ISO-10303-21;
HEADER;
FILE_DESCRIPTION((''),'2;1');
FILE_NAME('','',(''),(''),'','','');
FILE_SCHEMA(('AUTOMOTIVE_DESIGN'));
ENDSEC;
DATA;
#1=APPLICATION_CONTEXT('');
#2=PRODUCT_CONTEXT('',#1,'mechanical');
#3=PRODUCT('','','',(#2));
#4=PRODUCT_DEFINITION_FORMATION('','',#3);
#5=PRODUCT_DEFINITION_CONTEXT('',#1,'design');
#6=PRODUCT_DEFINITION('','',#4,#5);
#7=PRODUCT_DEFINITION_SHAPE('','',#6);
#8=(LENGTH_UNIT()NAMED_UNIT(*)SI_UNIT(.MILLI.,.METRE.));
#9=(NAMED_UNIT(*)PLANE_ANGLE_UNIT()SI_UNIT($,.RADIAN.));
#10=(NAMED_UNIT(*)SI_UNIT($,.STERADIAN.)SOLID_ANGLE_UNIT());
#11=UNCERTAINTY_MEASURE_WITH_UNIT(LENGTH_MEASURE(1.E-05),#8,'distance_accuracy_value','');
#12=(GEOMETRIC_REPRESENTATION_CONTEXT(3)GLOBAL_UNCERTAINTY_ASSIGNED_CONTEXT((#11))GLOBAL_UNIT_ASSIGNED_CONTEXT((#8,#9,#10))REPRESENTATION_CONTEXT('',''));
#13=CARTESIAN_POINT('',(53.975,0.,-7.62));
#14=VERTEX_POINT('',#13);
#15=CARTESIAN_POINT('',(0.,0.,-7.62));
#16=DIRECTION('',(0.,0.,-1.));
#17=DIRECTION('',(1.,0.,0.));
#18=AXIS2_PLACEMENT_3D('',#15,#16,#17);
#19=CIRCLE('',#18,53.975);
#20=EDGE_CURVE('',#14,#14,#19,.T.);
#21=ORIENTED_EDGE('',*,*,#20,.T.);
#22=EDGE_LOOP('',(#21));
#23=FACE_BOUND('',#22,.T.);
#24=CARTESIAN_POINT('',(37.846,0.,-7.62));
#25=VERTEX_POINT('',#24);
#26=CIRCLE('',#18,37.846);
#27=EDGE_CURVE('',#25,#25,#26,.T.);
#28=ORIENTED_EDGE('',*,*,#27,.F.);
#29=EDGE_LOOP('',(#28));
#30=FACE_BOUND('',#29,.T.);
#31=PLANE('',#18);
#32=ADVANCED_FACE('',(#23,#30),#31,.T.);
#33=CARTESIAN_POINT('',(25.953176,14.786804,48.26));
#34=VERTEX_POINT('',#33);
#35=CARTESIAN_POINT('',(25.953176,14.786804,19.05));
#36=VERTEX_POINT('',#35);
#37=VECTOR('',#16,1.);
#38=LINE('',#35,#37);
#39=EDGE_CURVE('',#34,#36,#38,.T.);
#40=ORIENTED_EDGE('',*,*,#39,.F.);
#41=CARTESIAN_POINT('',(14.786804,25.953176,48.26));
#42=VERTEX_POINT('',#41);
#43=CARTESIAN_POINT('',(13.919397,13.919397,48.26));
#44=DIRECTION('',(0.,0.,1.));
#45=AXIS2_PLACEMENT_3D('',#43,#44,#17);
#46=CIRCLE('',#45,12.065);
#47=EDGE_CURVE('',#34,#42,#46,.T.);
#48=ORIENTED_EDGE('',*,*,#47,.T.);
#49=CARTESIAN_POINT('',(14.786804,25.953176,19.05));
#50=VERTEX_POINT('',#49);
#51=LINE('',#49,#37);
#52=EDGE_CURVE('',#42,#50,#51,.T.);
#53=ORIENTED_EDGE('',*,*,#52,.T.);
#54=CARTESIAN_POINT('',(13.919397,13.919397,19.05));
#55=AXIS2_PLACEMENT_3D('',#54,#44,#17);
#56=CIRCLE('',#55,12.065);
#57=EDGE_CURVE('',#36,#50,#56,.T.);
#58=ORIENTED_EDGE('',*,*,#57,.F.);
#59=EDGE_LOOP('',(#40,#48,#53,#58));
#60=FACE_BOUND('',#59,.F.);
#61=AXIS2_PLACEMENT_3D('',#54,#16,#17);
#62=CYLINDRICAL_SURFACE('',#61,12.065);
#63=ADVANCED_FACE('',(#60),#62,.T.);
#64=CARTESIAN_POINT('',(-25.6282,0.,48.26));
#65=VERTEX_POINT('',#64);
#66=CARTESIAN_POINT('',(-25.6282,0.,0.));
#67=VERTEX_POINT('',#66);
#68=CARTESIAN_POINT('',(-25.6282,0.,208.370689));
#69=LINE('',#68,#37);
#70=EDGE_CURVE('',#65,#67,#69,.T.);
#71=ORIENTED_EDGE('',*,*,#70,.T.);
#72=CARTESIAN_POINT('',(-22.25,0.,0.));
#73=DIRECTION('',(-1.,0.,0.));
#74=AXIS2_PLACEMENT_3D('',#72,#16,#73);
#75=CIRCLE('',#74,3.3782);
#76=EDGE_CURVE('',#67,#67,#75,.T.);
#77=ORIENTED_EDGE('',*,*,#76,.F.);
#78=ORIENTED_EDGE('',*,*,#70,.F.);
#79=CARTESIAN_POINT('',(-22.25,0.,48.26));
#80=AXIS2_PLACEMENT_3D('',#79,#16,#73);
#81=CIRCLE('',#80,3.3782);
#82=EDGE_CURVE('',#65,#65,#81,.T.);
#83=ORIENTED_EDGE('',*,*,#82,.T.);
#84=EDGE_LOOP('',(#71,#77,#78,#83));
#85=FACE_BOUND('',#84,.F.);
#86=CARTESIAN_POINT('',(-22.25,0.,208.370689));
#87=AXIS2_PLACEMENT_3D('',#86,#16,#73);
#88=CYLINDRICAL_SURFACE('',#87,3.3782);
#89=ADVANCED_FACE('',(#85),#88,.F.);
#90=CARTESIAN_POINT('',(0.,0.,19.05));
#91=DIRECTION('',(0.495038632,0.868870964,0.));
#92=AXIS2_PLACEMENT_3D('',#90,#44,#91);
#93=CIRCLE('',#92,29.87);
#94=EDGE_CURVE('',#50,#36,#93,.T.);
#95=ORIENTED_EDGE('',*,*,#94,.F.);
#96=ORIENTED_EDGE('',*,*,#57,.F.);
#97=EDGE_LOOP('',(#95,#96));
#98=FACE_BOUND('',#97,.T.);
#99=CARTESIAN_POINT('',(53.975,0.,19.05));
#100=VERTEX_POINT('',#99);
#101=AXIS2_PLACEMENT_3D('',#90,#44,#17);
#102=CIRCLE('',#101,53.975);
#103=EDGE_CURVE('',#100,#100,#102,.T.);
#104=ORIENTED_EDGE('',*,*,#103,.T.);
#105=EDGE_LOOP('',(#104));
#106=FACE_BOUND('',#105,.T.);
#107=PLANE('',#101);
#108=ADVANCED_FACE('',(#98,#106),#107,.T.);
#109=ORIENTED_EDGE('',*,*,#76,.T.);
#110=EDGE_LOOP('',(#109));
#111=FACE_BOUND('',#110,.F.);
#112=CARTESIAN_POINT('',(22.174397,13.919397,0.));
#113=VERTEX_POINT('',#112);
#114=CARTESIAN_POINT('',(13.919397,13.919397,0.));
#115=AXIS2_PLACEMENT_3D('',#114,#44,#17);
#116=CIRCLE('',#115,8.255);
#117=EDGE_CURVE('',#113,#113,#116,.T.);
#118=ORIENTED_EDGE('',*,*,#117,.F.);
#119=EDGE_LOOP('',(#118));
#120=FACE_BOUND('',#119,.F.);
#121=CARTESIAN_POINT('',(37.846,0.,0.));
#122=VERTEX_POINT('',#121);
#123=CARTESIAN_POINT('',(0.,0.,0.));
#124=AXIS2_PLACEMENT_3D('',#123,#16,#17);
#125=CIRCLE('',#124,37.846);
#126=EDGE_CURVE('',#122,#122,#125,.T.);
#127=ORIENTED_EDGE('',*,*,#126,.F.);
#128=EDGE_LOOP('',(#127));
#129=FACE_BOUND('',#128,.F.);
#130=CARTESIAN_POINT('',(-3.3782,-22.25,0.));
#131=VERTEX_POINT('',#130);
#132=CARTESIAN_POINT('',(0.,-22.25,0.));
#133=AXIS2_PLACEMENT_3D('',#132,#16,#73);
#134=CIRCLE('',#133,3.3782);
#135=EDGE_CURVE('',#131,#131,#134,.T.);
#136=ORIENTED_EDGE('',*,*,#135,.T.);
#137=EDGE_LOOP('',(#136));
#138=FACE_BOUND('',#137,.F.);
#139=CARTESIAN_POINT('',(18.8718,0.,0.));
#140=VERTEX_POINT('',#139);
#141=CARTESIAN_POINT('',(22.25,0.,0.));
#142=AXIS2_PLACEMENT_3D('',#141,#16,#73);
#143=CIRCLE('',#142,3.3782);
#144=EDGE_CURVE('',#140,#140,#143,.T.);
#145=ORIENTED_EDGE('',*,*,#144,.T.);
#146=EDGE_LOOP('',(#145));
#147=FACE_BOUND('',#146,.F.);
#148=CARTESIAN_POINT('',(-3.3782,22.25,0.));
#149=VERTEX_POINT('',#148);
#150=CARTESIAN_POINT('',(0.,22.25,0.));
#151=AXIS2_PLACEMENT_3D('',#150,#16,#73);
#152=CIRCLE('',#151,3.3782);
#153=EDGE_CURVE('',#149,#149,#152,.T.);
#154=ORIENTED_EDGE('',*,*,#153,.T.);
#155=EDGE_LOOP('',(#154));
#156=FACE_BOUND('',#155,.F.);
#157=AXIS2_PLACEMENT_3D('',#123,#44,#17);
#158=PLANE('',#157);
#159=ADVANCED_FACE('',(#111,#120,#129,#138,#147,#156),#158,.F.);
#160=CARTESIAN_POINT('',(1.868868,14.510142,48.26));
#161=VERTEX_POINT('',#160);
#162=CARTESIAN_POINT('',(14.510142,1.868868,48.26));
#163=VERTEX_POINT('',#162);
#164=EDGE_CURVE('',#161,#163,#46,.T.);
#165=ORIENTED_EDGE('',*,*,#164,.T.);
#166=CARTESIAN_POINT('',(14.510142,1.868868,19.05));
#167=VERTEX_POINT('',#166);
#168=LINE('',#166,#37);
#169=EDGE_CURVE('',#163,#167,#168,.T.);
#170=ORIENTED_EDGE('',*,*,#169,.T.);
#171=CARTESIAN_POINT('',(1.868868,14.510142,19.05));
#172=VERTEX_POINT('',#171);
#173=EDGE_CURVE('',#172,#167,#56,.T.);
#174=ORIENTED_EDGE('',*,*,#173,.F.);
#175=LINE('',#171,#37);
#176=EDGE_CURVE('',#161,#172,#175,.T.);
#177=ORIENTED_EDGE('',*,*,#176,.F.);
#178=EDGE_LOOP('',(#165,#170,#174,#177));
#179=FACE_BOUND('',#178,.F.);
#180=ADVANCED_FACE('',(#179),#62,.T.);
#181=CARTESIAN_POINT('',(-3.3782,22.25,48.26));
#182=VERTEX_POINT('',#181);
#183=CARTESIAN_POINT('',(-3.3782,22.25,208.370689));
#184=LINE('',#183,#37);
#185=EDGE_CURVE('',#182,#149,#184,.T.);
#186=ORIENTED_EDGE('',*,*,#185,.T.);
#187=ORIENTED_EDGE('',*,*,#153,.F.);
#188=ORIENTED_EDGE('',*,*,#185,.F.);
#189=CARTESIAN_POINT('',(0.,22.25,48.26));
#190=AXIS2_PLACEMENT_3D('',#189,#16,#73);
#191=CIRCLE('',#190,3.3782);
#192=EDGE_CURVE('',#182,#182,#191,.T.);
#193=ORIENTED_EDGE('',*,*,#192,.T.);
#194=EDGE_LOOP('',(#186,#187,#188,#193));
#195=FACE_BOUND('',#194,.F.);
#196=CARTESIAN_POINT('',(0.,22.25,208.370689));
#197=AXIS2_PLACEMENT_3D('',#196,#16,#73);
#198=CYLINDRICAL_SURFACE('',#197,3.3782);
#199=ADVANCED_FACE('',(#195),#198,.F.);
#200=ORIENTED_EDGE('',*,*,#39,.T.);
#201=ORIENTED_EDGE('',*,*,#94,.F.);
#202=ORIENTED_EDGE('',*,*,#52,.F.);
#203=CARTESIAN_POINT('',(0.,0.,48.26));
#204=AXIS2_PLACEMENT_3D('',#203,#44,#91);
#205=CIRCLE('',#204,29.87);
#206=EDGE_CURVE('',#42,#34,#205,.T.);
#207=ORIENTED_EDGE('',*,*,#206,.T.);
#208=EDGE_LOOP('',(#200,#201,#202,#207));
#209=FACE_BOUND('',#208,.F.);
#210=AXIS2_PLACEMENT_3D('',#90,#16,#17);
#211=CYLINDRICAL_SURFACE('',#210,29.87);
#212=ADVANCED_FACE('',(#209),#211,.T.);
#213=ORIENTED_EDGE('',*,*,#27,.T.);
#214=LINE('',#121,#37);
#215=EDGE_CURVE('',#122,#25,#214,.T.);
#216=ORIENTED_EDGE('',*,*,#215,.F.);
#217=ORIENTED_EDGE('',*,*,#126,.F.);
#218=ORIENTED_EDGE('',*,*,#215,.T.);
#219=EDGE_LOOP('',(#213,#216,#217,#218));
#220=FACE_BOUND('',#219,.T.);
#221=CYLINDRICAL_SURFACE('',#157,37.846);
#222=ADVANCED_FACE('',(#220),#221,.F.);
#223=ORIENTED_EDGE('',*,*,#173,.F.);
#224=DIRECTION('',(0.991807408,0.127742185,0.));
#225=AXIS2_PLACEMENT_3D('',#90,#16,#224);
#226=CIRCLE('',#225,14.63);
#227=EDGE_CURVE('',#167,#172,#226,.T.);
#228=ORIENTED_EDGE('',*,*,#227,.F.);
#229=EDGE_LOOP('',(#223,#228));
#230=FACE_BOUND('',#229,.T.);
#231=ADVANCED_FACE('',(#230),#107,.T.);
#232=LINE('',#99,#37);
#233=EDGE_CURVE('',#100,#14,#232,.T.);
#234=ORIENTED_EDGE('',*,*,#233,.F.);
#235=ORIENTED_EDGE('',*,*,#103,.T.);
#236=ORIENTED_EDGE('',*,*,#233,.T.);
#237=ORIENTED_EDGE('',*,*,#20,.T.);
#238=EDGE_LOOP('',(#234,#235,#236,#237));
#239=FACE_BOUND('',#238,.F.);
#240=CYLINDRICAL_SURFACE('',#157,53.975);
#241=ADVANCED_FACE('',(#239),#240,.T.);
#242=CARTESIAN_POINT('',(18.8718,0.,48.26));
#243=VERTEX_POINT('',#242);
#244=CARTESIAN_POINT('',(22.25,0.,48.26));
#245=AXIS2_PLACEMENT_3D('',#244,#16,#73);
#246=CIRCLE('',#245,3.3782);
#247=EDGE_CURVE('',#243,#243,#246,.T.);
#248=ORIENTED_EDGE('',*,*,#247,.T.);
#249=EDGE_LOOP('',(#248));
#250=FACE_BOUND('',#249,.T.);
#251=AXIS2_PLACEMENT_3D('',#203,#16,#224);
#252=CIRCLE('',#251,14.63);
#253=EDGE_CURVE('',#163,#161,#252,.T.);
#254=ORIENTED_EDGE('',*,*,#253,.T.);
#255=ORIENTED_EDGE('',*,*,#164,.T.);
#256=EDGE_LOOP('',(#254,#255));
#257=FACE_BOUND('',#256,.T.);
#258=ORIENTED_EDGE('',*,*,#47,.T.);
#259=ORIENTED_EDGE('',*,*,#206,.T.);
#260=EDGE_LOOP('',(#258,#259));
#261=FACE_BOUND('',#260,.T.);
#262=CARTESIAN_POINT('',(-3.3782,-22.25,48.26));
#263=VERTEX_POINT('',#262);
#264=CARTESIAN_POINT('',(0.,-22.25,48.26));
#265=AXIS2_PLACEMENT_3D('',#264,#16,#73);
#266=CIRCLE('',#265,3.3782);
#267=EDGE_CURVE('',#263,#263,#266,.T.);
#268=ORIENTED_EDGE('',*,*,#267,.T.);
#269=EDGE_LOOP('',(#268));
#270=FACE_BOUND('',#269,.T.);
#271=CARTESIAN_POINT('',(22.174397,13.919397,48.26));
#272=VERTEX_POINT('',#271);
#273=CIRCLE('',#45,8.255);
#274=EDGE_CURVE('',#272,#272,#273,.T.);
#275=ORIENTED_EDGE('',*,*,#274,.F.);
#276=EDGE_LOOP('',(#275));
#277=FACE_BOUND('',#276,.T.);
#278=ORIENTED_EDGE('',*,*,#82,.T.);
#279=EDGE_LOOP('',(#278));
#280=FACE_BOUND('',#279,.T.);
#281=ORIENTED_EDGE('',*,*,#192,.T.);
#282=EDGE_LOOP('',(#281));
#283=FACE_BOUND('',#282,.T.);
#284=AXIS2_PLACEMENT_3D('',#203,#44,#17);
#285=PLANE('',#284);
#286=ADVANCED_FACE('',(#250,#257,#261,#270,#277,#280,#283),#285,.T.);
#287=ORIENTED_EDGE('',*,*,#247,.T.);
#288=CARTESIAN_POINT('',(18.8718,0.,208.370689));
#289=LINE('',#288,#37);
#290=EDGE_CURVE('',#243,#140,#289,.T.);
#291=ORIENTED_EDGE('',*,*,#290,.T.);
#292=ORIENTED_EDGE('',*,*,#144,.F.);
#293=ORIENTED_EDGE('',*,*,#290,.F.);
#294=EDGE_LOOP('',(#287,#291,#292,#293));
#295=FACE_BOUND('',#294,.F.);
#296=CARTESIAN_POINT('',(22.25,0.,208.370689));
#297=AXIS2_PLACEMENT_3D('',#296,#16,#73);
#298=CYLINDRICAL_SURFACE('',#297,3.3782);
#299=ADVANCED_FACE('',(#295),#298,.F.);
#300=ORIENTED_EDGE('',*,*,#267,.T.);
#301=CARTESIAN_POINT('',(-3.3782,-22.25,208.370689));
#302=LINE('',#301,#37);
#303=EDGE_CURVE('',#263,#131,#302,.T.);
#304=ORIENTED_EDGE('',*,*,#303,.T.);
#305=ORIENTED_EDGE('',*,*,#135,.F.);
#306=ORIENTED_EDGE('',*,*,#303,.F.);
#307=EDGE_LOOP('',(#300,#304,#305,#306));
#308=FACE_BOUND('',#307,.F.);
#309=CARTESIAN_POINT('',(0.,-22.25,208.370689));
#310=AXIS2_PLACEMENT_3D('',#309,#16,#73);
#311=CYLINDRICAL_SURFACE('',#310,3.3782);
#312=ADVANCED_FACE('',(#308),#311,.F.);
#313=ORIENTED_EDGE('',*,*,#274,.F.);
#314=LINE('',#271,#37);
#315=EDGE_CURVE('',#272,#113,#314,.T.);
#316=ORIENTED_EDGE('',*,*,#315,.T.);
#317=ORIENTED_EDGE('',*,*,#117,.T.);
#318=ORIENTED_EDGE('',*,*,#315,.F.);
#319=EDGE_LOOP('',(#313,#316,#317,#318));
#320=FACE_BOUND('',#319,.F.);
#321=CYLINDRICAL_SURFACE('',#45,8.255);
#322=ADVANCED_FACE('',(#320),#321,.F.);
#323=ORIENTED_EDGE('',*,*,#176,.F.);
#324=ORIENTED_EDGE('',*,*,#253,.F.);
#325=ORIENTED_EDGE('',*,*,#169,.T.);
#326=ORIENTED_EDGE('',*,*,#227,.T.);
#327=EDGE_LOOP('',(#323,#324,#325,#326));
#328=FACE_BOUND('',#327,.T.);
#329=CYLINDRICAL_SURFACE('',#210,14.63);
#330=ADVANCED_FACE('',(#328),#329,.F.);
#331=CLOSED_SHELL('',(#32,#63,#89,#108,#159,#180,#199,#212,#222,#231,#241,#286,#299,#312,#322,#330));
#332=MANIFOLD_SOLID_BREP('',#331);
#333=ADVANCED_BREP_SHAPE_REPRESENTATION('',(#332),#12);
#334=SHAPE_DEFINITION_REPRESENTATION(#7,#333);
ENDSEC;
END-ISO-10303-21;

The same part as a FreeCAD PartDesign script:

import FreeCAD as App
import Part
import Sketcher
Q = App.Units.Quantity

doc = App.newDocument("Part")
body = doc.addObject("PartDesign::Body", "Body")

sketch1 = body.newObject("Sketcher::SketchObject", "Sketch")
sketch1.AttachmentSupport = (doc.getObject("XY_Plane"), [""])
sketch1.MapMode = "FlatFace"
sketch1.addGeometry(Part.Circle(App.Vector(0, 0, 0), App.Vector(0, 0, 1), 54), False)
sketch1.addConstraint([
    Sketcher.Constraint("Coincident", 0, 3, -1, 1),
    Sketcher.Constraint("Diameter", 0, Q("4.25 in")),
])
pad1 = body.newObject("PartDesign::Pad", "Pad")
pad1.Profile = sketch1
pad1.Length = Q("0.75 in")

sketch2 = body.newObject("Sketcher::SketchObject", "Sketch001")
sketch2.AttachmentSupport = (doc.getObject("XY_Plane"), [""])
sketch2.MapMode = "FlatFace"
sketch2.AttachmentOffset = App.Placement(App.Vector(0, 0, 0.75 * 25.4), App.Rotation())
sketch2.addGeometry([
    Part.Circle(App.Vector(0, 0, 0), App.Vector(0, 0, 1), 30),
    Part.Circle(App.Vector(0, 0, 0), App.Vector(0, 0, 1), 15),
], False)
sketch2.addConstraint([
    Sketcher.Constraint("Coincident", 0, 3, -1, 1),
    Sketcher.Constraint("Coincident", 1, 3, -1, 1),
    Sketcher.Constraint("Diameter", 0, 59.74),
    Sketcher.Constraint("Diameter", 1, 29.26),
])
pad2 = body.newObject("PartDesign::Pad", "Pad001")
pad2.Profile = sketch2
pad2.Length = Q("1.15 in")

sketch3 = body.newObject("Sketcher::SketchObject", "Sketch002")
sketch3.AttachmentSupport = (doc.getObject("XY_Plane"), [""])
sketch3.MapMode = "FlatFace"
sketch3.AttachmentOffset = App.Placement(App.Vector(0, 0, 1.9 * 25.4), App.Rotation())
sketch3.addGeometry([
    Part.Circle(App.Vector(0, -22.2, 0), App.Vector(0, 0, 1), 3.4),
    Part.Circle(App.Vector(-22.2, 0, 0), App.Vector(0, 0, 1), 3.4),
    Part.Circle(App.Vector(0, 22.2, 0), App.Vector(0, 0, 1), 3.4),
    Part.Circle(App.Vector(22.2, 0, 0), App.Vector(0, 0, 1), 3.4),
], False)
sketch3.addConstraint([
    Sketcher.Constraint("Equal", 0, 1),
    Sketcher.Constraint("Equal", 1, 2),
    Sketcher.Constraint("Equal", 2, 3),
    Sketcher.Constraint("Symmetric", 0, 3, 2, 3, -1, 1),
    Sketcher.Constraint("Symmetric", 1, 3, 3, 3, -1, 1),
    Sketcher.Constraint("PointOnObject", 0, 3, -2),
    Sketcher.Constraint("PointOnObject", 1, 3, -1),
    Sketcher.Constraint("Diameter", 0, Q("0.266 in")),
    Sketcher.Constraint("DistanceY", 0, 3, -1, 1, 22.25),
    Sketcher.Constraint("DistanceX", 1, 3, -1, 1, 22.25),
])
doc.recompute()
hole = body.newObject("PartDesign::Hole", "Hole")
hole.Profile = sketch3
hole.ThreadType = "None"
hole.Diameter = Q("0.266 in")
hole.DepthType = "ThroughAll"

sketch4 = body.newObject("Sketcher::SketchObject", "Sketch003")
sketch4.AttachmentSupport = (doc.getObject("XY_Plane"), [""])
sketch4.MapMode = "FlatFace"
sketch4.addGeometry([
    Part.Circle(App.Vector(0, 0, 0), App.Vector(0, 0, 1), 54),
    Part.Circle(App.Vector(0, 0, 0), App.Vector(0, 0, 1), 38),
], False)
sketch4.addConstraint([
    Sketcher.Constraint("Coincident", 0, 3, -1, 1),
    Sketcher.Constraint("Coincident", 1, 3, -1, 1),
    Sketcher.Constraint("Diameter", 0, Q("4.25 in")),
    Sketcher.Constraint("Diameter", 1, Q("2.98 in")),
])
pad3 = body.newObject("PartDesign::Pad", "Pad002")
pad3.Profile = sketch4
pad3.Length = Q("0.3 in")
pad3.Reversed = True

sketch5 = body.newObject("Sketcher::SketchObject", "Sketch004")
sketch5.AttachmentSupport = (doc.getObject("XY_Plane"), [""])
sketch5.MapMode = "FlatFace"
sketch5.AttachmentOffset = App.Placement(App.Vector(0, 0, 0.75 * 25.4), App.Rotation())
sketch5.addGeometry(Part.Circle(App.Vector(14, 14, 0), App.Vector(0, 0, 1), 12), False)
sketch5.addConstraint([
    Sketcher.Constraint("Diameter", 0, Q("0.95 in")),
    Sketcher.Constraint("DistanceX", -1, 1, 0, 3, 13.919397),
    Sketcher.Constraint("DistanceY", -1, 1, 0, 3, 13.919397),
])
pad4 = body.newObject("PartDesign::Pad", "Pad003")
pad4.Profile = sketch5
pad4.Type = "UpToLast"

sketch6 = body.newObject("Sketcher::SketchObject", "Sketch005")
sketch6.AttachmentSupport = (doc.getObject("XY_Plane"), [""])
sketch6.MapMode = "FlatFace"
sketch6.AttachmentOffset = App.Placement(App.Vector(0, 0, 1.9 * 25.4), App.Rotation())
sketch6.addGeometry(Part.Circle(App.Vector(14, 14, 0), App.Vector(0, 0, 1), 8), False)
sketch6.addConstraint([
    Sketcher.Constraint("Diameter", 0, Q("0.65 in")),
    Sketcher.Constraint("DistanceX", -1, 1, 0, 3, 13.919397),
    Sketcher.Constraint("DistanceY", -1, 1, 0, 3, 13.919397),
])
pocket1 = body.newObject("PartDesign::Pocket", "Pocket")
pocket1.Profile = sketch6
pocket1.Type = "ThroughAll"

doc.recompute()
